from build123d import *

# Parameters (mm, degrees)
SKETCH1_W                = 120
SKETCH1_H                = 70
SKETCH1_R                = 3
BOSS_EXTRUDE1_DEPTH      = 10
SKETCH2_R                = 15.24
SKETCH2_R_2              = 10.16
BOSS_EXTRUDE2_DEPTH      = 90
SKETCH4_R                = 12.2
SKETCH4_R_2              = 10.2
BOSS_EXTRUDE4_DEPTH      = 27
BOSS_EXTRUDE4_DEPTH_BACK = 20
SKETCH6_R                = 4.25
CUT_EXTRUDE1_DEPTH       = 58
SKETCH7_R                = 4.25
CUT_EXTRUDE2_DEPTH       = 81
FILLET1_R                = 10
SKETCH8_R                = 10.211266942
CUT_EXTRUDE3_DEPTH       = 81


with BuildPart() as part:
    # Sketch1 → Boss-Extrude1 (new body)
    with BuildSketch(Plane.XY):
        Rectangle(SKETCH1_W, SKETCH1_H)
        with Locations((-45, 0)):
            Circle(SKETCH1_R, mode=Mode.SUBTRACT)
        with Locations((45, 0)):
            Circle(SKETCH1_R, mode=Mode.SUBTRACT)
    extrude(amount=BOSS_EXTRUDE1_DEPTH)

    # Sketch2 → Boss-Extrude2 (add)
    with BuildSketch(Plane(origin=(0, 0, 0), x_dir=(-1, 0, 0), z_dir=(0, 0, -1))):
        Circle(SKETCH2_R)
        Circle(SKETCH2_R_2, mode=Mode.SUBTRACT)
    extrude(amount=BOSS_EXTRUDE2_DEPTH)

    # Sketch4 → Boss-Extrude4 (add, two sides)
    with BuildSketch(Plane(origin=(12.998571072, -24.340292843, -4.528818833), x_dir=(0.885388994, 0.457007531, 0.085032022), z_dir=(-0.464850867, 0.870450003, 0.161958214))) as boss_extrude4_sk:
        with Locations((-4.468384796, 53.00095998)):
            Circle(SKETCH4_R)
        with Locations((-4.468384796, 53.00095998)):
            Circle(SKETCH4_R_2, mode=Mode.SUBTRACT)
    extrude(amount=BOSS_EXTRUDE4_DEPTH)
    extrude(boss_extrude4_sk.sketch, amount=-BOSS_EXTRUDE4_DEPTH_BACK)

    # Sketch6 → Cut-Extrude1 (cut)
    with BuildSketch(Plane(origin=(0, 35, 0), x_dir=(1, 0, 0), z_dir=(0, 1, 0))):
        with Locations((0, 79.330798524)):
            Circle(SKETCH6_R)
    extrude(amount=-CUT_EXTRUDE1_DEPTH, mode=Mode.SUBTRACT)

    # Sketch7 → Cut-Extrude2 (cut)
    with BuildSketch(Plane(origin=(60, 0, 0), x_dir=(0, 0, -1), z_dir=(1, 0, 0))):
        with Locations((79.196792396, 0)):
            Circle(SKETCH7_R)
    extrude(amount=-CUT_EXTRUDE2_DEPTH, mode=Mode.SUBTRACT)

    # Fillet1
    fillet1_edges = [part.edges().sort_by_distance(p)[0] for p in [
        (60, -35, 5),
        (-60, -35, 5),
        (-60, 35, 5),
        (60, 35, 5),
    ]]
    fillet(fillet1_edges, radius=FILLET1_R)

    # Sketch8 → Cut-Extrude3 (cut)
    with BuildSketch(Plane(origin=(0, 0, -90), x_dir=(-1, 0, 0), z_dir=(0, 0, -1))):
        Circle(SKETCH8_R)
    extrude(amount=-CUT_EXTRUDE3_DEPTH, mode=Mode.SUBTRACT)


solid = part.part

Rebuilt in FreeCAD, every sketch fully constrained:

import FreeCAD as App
import Part
import Sketcher

V = App.Vector
Q = App.Units.Quantity


def edges_at(feature, points):
    """Names of the edges that pass closest to the given points."""
    edges = feature.Shape.Edges
    near = lambda p: min(range(len(edges)), key=lambda i: edges[i].distToShape(Part.Vertex(*p))[0])
    return sorted({f"Edge{near(p) + 1}" for p in points})


def add_polygon(sketch, points):
    """Adds a closed chain of lines whose ends are joined by coincident constraints."""
    first, n = sketch.GeometryCount, len(points)
    for a, b in zip(points, points[1:] + points[:1]):
        sketch.addGeometry(Part.LineSegment(App.Vector(*a, 0), App.Vector(*b, 0)), False)
    for i in range(n):
        sketch.addConstraint(Sketcher.Constraint("Coincident", first + i, 2, first + (i + 1) % n, 1))

doc = App.newDocument("Part")
body = doc.addObject("PartDesign::Body", "Body")

# Sketch on XY plane
sketch1 = body.newObject("Sketcher::SketchObject", "Sketch")
sketch1.AttachmentSupport = (doc.getObject("XY_Plane"), [""])
sketch1.MapMode = "FlatFace"
add_polygon(sketch1, [(-60, 35), (-60, -35), (60, -35), (60, 35)])  # lines 0-3
sketch1.addGeometry(Part.Circle(V(-45, 0, 0), V(0, 0, 1), 3), False)  # 4
sketch1.addGeometry(Part.Circle(V(45, 0, 0), V(0, 0, 1), 3), False)  # 5
sketch1.addConstraint(Sketcher.Constraint("Vertical", 0))
sketch1.addConstraint(Sketcher.Constraint("Horizontal", 1))
sketch1.addConstraint(Sketcher.Constraint("Vertical", 2))
sketch1.addConstraint(Sketcher.Constraint("Horizontal", 3))
sketch1.addConstraint(Sketcher.Constraint("Equal", 4, 5))
sketch1.addConstraint(Sketcher.Constraint("Symmetric", 4, 3, 5, 3, -1, 1))
sketch1.addConstraint(Sketcher.Constraint("Symmetric", 0, 2, 2, 2, -1, 1))
sketch1.addConstraint(Sketcher.Constraint("PointOnObject", 4, 3, -1))
sketch1.addConstraint(Sketcher.Constraint("Diameter", 4, Q("6 mm")))
sketch1.addConstraint(Sketcher.Constraint("DistanceX", 1, 1, 1, 2, Q("120 mm")))
sketch1.addConstraint(Sketcher.Constraint("DistanceY", 0, 2, 0, 1, Q("70 mm")))
sketch1.addConstraint(Sketcher.Constraint("DistanceX", 4, 3, -1, 1, Q("45 mm")))
pad1 = body.newObject("PartDesign::Pad", "Pad")
pad1.Profile = sketch1
pad1.Length = 10

# Sketch on XY plane
sketch2 = body.newObject("Sketcher::SketchObject", "Sketch001")
sketch2.AttachmentSupport = (doc.getObject("XY_Plane"), [""])
sketch2.MapMode = "FlatFace"
sketch2.addGeometry(Part.Circle(V(0, 0, 0), V(0, 0, 1), 15), False)
sketch2.addGeometry(Part.Circle(V(0, 0, 0), V(0, 0, 1), 10), False)
sketch2.addConstraint(Sketcher.Constraint("Coincident", 0, 3, -1, 1))
sketch2.addConstraint(Sketcher.Constraint("Coincident", 1, 3, -1, 1))
sketch2.addConstraint(Sketcher.Constraint("Diameter", 0, Q("30.48 mm")))
sketch2.addConstraint(Sketcher.Constraint("Diameter", 1, Q("20.32 mm")))
pad2 = body.newObject("PartDesign::Pad", "Pad001")
pad2.Profile = sketch2
pad2.Length = 90
pad2.Reversed = True

# Sketch on an angled plane
sketch3 = body.newObject("Sketcher::SketchObject", "Sketch002")
sketch3.Placement = App.Placement(V(12.998571, -24.340293, -4.528819), App.Rotation(V(0.885388994, 0.457007532, 0.085032022), V(0, 0.182923229, -0.9831272), V(-0.464850867, 0.870450003, 0.161958214), "ZXY"))
sketch3.addGeometry(Part.Circle(V(-4, 53, 0), V(0, 0, 1), 12), False)
sketch3.addGeometry(Part.Circle(V(-4, 53, 0), V(0, 0, 1), 10), False)
sketch3.addConstraint(Sketcher.Constraint("Coincident", 1, 3, 0, 3))
sketch3.addConstraint(Sketcher.Constraint("Diameter", 0, Q("24.4 mm")))
sketch3.addConstraint(Sketcher.Constraint("Diameter", 1, Q("20.4 mm")))
sketch3.addConstraint(Sketcher.Constraint("DistanceY", -1, 1, 0, 3, Q("53.00096 mm")))
sketch3.addConstraint(Sketcher.Constraint("DistanceX", 0, 3, -1, 1, Q("4.468385 mm")))
pad3 = body.newObject("PartDesign::Pad", "Pad002")
pad3.Profile = sketch3
pad3.Type = "TwoLengths"
pad3.Length = 27
pad3.Length2 = 20

# Sketch on XZ plane
sketch4 = body.newObject("Sketcher::SketchObject", "Sketch003")
sketch4.AttachmentSupport = (doc.getObject("XZ_Plane"), [""])
sketch4.MapMode = "FlatFace"
sketch4.AttachmentOffset = App.Placement(V(0, 0, -35), App.Rotation())
sketch4.addGeometry(Part.Circle(V(0, -79.3, 0), V(0, 0, 1), 4.2), False)
sketch4.addConstraint(Sketcher.Constraint("PointOnObject", 0, 3, -2))
sketch4.addConstraint(Sketcher.Constraint("Diameter", 0, Q("8.5 mm")))
sketch4.addConstraint(Sketcher.Constraint("DistanceY", 0, 3, -1, 1, Q("79.330799 mm")))
pocket1 = body.newObject("PartDesign::Pocket", "Pocket")
pocket1.Profile = sketch4
pocket1.Length = 58
pocket1.Reversed = True

# Sketch on YZ plane
sketch5 = body.newObject("Sketcher::SketchObject", "Sketch004")
sketch5.AttachmentSupport = (doc.getObject("YZ_Plane"), [""])
sketch5.MapMode = "FlatFace"
sketch5.AttachmentOffset = App.Placement(V(0, 0, 60), App.Rotation())
sketch5.addGeometry(Part.Circle(V(0, -79.2, 0), V(0, 0, 1), 4.2), False)
sketch5.addConstraint(Sketcher.Constraint("PointOnObject", 0, 3, -2))
sketch5.addConstraint(Sketcher.Constraint("Diameter", 0, Q("8.5 mm")))
sketch5.addConstraint(Sketcher.Constraint("DistanceY", 0, 3, -1, 1, Q("79.196792 mm")))
pocket2 = body.newObject("PartDesign::Pocket", "Pocket001")
pocket2.Profile = sketch5
pocket2.Length = 81
doc.recompute()

fillet = body.newObject("PartDesign::Fillet", "Fillet")
fillet.Base = (pocket2, edges_at(pocket2, [
    (60, -35, 5),
    (-60, -35, 5),
    (-60, 35, 5),
    (60, 35, 5),
]))
fillet.Radius = 10

# Sketch on XY plane
sketch6 = body.newObject("Sketcher::SketchObject", "Sketch005")
sketch6.AttachmentSupport = (doc.getObject("XY_Plane"), [""])
sketch6.MapMode = "FlatFace"
sketch6.AttachmentOffset = App.Placement(V(0, 0, -90), App.Rotation())
sketch6.addGeometry(Part.Circle(V(0, 0, 0), V(0, 0, 1), 10), False)
sketch6.addConstraint(Sketcher.Constraint("Coincident", 0, 3, -1, 1))
sketch6.addConstraint(Sketcher.Constraint("Diameter", 0, Q("20.422534 mm")))
pocket3 = body.newObject("PartDesign::Pocket", "Pocket002")
pocket3.Profile = sketch6
pocket3.Length = 81
pocket3.Reversed = True

doc.recompute()
